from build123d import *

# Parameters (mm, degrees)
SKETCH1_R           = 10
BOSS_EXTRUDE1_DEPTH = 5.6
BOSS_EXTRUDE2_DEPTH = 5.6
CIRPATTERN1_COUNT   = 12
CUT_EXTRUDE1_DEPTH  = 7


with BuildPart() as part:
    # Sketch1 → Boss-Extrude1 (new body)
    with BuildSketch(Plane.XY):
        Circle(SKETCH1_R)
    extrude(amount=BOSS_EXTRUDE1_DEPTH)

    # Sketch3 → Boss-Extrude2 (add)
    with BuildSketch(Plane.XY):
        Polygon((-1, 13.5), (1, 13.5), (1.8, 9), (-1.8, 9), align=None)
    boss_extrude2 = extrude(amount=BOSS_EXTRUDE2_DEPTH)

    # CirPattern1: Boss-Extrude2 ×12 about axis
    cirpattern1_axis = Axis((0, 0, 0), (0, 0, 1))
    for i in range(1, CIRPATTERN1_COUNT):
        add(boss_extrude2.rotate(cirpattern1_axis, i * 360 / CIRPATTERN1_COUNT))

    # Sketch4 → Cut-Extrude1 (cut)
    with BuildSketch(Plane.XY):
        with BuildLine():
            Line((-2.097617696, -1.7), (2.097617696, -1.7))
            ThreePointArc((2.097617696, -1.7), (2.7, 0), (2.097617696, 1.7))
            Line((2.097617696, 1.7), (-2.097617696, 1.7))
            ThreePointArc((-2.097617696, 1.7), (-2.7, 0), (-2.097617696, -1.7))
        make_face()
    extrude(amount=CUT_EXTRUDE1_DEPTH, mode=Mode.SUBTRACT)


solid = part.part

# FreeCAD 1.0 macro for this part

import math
import FreeCAD as App
import Part
import Sketcher

V = App.Vector

doc = App.newDocument("Part")
params = doc.addObject("Spreadsheet::Sheet", "Params")
for row, (alias, value) in enumerate([
    ("sketch1_diameter", "20 mm"),
    ("pad1_length", "5.6 mm"),
    ("sketch2_width", "2 mm"),
    ("sketch2_width2", "3.6 mm"),
    ("pad2_length", "5.6 mm"),
    ("sketch3_radius", "2.7 mm"),
    ("pocket1_length", "7 mm"),
], start=1):
    params.set(f"A{row}", alias)
    params.set(f"B{row}", "=" + value)
    params.setAlias(f"B{row}", alias)

body = doc.addObject("PartDesign::Body", "Body")

sketch1 = body.newObject("Sketcher::SketchObject", "Sketch")
sketch1.AttachmentSupport = (doc.getObject("XY_Plane"), [""])
sketch1.MapMode = "FlatFace"
sketch1.addGeometry(Part.Circle(V(0, 0, 0), V(0, 0, 1), 10), False)
sketch1.addConstraint([
    Sketcher.Constraint("Coincident", 0, 3, -1, 1),
    Sketcher.Constraint("Diameter", 0, 20.0),
])
sketch1.setExpression("Constraints[1]", "Params.sketch1_diameter")
pad1 = body.newObject("PartDesign::Pad", "Pad")
pad1.Profile = sketch1
pad1.setExpression("Length", "Params.pad1_length")

sketch2 = body.newObject("Sketcher::SketchObject", "Sketch001")
sketch2.AttachmentSupport = (doc.getObject("XY_Plane"), [""])
sketch2.MapMode = "FlatFace"
sketch2.addGeometry([
    Part.LineSegment(V(1, 13.5, 0), V(-1, 13.5, 0)),
    Part.LineSegment(V(-1, 13.5, 0), V(-1.8, 9, 0)),
    Part.LineSegment(V(-1.8, 9, 0), V(1.8, 9, 0)),
    Part.LineSegment(V(1.8, 9, 0), V(1, 13.5, 0)),
], False)
sketch2.addConstraint([
    Sketcher.Constraint("Coincident", 0, 2, 1, 1),
    Sketcher.Constraint("Coincident", 1, 2, 2, 1),
    Sketcher.Constraint("Coincident", 2, 2, 3, 1),
    Sketcher.Constraint("Coincident", 3, 2, 0, 1),
    Sketcher.Constraint("Horizontal", 0),
    Sketcher.Constraint("Horizontal", 2),
    Sketcher.Constraint("Equal", 1, 3),
    Sketcher.Constraint("DistanceX", 0, 2, 0, 1, 2.0),
    Sketcher.Constraint("DistanceX", 2, 1, 2, 2, 3.6),
    Sketcher.Constraint("DistanceX", 0, 2, -1, 1, 1.0),
    Sketcher.Constraint("DistanceY", -1, 1, 1, 2, 9.0),
    Sketcher.Constraint("DistanceY", -1, 1, 0, 2, 13.5),
])
sketch2.setExpression("Constraints[7]", "Params.sketch2_width")
sketch2.setExpression("Constraints[8]", "Params.sketch2_width2")
pad2 = body.newObject("PartDesign::Pad", "Pad001")
pad2.Profile = sketch2
pad2.setExpression("Length", "Params.pad2_length")
doc.recompute()

polarpattern = body.newObject("PartDesign::PolarPattern", "PolarPattern")
polarpattern.Originals = [pad2]
polarpattern.Axis = (doc.getObject("Z_Axis"), [""])
polarpattern.Angle = 360
polarpattern.Occurrences = 12
body.Tip = polarpattern

sketch3 = body.newObject("Sketcher::SketchObject", "Sketch002")
sketch3.AttachmentSupport = (doc.getObject("XY_Plane"), [""])
sketch3.MapMode = "FlatFace"
sketch3.addGeometry([
    Part.LineSegment(V(-2.097618, -1.7, 0), V(2.097618, -1.7, 0)),
    Part.ArcOfCircle(Part.Circle(V(0, 0, 0), V(0, 0, 1), 2.7), math.radians(-39.022803), math.radians(39.022803)),
    Part.LineSegment(V(2.097618, 1.7, 0), V(-2.097618, 1.7, 0)),
    Part.ArcOfCircle(Part.Circle(V(0, 0, 0), V(0, 0, 1), 2.7), math.radians(140.977197), math.radians(219.022803)),
], False)
sketch3.addConstraint([
    Sketcher.Constraint("Coincident", 0, 2, 1, 1),
    Sketcher.Constraint("Coincident", 1, 2, 2, 1),
    Sketcher.Constraint("Coincident", 2, 2, 3, 1),
    Sketcher.Constraint("Coincident", 3, 2, 0, 1),
    Sketcher.Constraint("Horizontal", 0),
    Sketcher.Constraint("Horizontal", 2),
    Sketcher.Constraint("Coincident", 1, 3, -1, 1),
    Sketcher.Constraint("Coincident", 3, 3, -1, 1),
    Sketcher.Constraint("Equal", 1, 3),
    Sketcher.Constraint("Vertical", 0, 2, 1, 2),
    Sketcher.Constraint("Radius", 1, 2.7),
    Sketcher.Constraint("DistanceY", 0, 2, -1, 1, 1.7),
])
sketch3.setExpression("Constraints[10]", "Params.sketch3_radius")
pocket1 = body.newObject("PartDesign::Pocket", "Pocket")
pocket1.Profile = sketch3
pocket1.setExpression("Length", "Params.pocket1_length")
pocket1.Reversed = True

doc.recompute()
